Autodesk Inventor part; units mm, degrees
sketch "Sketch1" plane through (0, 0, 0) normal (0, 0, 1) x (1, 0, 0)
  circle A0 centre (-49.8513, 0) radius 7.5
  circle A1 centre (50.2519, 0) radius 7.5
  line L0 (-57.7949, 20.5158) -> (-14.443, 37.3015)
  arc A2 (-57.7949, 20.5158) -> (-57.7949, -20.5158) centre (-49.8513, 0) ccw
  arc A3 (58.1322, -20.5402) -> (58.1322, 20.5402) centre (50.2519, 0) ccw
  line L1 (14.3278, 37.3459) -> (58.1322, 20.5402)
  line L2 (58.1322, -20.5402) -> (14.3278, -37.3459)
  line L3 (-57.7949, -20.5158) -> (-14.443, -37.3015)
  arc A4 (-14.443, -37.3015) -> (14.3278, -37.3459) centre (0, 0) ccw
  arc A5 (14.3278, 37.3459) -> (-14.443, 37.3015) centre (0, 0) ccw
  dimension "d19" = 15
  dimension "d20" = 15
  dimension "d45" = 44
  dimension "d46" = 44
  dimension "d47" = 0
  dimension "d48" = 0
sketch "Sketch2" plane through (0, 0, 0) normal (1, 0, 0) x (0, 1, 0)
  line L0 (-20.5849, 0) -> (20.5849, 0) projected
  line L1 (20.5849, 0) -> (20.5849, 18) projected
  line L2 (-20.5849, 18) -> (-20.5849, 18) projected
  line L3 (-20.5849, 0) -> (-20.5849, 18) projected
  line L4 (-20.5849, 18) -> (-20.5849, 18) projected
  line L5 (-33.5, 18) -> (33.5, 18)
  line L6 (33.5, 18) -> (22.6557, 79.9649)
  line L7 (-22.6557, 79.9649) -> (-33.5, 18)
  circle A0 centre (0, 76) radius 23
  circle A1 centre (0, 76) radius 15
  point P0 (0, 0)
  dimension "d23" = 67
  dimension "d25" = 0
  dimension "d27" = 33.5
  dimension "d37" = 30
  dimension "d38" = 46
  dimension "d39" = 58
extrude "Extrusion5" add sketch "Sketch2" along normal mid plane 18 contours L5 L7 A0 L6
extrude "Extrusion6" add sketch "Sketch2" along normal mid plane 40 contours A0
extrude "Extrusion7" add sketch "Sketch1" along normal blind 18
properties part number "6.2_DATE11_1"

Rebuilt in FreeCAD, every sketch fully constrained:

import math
import FreeCAD as App
import Part
import Sketcher
Q = App.Units.Quantity

doc = App.newDocument("Part")
body = doc.addObject("PartDesign::Body", "Body")

sketch1 = body.newObject("Sketcher::SketchObject", "Sketch")
sketch1.AttachmentSupport = (doc.getObject("YZ_Plane"), [""])
sketch1.MapMode = "FlatFace"
sketch1.addGeometry([
    Part.LineSegment(App.Vector(-33.5, 18, 0), App.Vector(33.5, 18, 0)),
    Part.LineSegment(App.Vector(33.5, 18, 0), App.Vector(22.6557, 79.9649, 0)),
    Part.ArcOfCircle(Part.Circle(App.Vector(0, 76, 0), App.Vector(0, 0, 1), 23), math.radians(170.07338), math.radians(369.92662)),
    Part.LineSegment(App.Vector(-22.6557, 79.9649, 0), App.Vector(-33.5, 18, 0)),
], False)
sketch1.addConstraint([
    Sketcher.Constraint("Coincident", 0, 2, 1, 1),
    Sketcher.Constraint("Tangent", 1, 2, 2, 2),
    Sketcher.Constraint("Tangent", 2, 1, 3, 1),
    Sketcher.Constraint("Coincident", 3, 2, 0, 1),
    Sketcher.Constraint("Horizontal", 0),
    Sketcher.Constraint("Symmetric", 1, 2, 2, 1, -2),
    Sketcher.Constraint("Radius", 2, Q("23 mm")),
    Sketcher.Constraint("DistanceX", 0, 1, 0, 2, Q("67 mm")),
    Sketcher.Constraint("DistanceY", 0, 2, 2, 3, Q("58 mm")),
    Sketcher.Constraint("DistanceY", -1, 1, 2, 3, Q("76 mm")),
])
pad1 = body.newObject("PartDesign::Pad", "Pad")
pad1.Profile = sketch1
pad1.Length = 18
pad1.Midplane = True

sketch2 = body.newObject("Sketcher::SketchObject", "Sketch001")
sketch2.AttachmentSupport = (doc.getObject("YZ_Plane"), [""])
sketch2.MapMode = "FlatFace"
sketch2.addGeometry([
    Part.Circle(App.Vector(0, 76, 0), App.Vector(0, 0, 1), 23),
    Part.Circle(App.Vector(0, 76, 0), App.Vector(0, 0, 1), 15),
], False)
sketch2.addConstraint([
    Sketcher.Constraint("Coincident", 1, 3, 0, 3),
    Sketcher.Constraint("PointOnObject", 0, 3, -2),
    Sketcher.Constraint("Diameter", 0, Q("46 mm")),
    Sketcher.Constraint("Diameter", 1, Q("30 mm")),
    Sketcher.Constraint("DistanceY", -1, 1, 0, 3, Q("76 mm")),
])
pad2 = body.newObject("PartDesign::Pad", "Pad001")
pad2.Profile = sketch2
pad2.Length = 40
pad2.Midplane = True

sketch3 = body.newObject("Sketcher::SketchObject", "Sketch002")
sketch3.AttachmentSupport = (doc.getObject("XY_Plane"), [""])
sketch3.MapMode = "FlatFace"
sketch3.addGeometry([
    Part.LineSegment(App.Vector(-14.443, 37.3015, 0), App.Vector(-57.7949, 20.5158, 0)),
    Part.ArcOfCircle(Part.Circle(App.Vector(-49.8513, 0, 0), App.Vector(0, 0, 1), 21.999973), math.radians(111.166117), math.radians(248.833883)),
    Part.LineSegment(App.Vector(-57.7949, -20.5158, 0), App.Vector(-14.443, -37.3015, 0)),
    Part.ArcOfCircle(Part.Circle(App.Vector(0, 0, 0), App.Vector(0, 0, 1), 40.000026), math.radians(-111.166215), math.radians(-69.010628)),
    Part.LineSegment(App.Vector(14.3278, -37.3459, 0), App.Vector(58.1322, -20.5402, 0)),
    Part.ArcOfCircle(Part.Circle(App.Vector(50.2519, 0, 0), App.Vector(0, 0, 1), 21.999976), math.radians(-69.010562), math.radians(69.010562)),
    Part.LineSegment(App.Vector(58.1322, 20.5402, 0), App.Vector(14.3278, 37.3459, 0)),
    Part.ArcOfCircle(Part.Circle(App.Vector(0, 0, 0), App.Vector(0, 0, 1), 40.000027), math.radians(69.010628), math.radians(111.166215)),
    Part.Circle(App.Vector(-49.8513, 0, 0), App.Vector(0, 0, 1), 7.5),
    Part.Circle(App.Vector(50.2519, 0, 0), App.Vector(0, 0, 1), 7.5),
], False)
sketch3.addConstraint([
    Sketcher.Constraint("Tangent", 0, 2, 1, 1),
    Sketcher.Constraint("Tangent", 1, 2, 2, 1),
    Sketcher.Constraint("Tangent", 2, 2, 3, 1),
    Sketcher.Constraint("Tangent", 3, 2, 4, 1),
    Sketcher.Constraint("Tangent", 4, 2, 5, 1),
    Sketcher.Constraint("Tangent", 5, 2, 6, 1),
    Sketcher.Constraint("Tangent", 6, 2, 7, 1),
    Sketcher.Constraint("Tangent", 7, 2, 0, 1),
    Sketcher.Constraint("Coincident", 3, 3, -1, 1),
    Sketcher.Constraint("Coincident", 7, 3, -1, 1),
    Sketcher.Constraint("Coincident", 8, 3, 1, 3),
    Sketcher.Constraint("Coincident", 9, 3, 5, 3),
    Sketcher.Constraint("Equal", 1, 5),
    Sketcher.Constraint("Equal", 3, 7),
    Sketcher.Constraint("Equal", 8, 9),
    Sketcher.Constraint("PointOnObject", 1, 3, -1),
    Sketcher.Constraint("PointOnObject", 5, 3, -1),
    Sketcher.Constraint("Diameter", 8, Q("15 mm")),
    Sketcher.Constraint("Radius", 1, Q("22 mm")),
    Sketcher.Constraint("Radius", 3, Q("40 mm")),
    Sketcher.Constraint("Angle", 4, Q("20.9895 deg")),
    Sketcher.Constraint("DistanceX", 0, 2, -1, 1, Q("57.795 mm")),
])
pad3 = body.newObject("PartDesign::Pad", "Pad002")
pad3.Profile = sketch3
pad3.Length = 18

doc.recompute()
